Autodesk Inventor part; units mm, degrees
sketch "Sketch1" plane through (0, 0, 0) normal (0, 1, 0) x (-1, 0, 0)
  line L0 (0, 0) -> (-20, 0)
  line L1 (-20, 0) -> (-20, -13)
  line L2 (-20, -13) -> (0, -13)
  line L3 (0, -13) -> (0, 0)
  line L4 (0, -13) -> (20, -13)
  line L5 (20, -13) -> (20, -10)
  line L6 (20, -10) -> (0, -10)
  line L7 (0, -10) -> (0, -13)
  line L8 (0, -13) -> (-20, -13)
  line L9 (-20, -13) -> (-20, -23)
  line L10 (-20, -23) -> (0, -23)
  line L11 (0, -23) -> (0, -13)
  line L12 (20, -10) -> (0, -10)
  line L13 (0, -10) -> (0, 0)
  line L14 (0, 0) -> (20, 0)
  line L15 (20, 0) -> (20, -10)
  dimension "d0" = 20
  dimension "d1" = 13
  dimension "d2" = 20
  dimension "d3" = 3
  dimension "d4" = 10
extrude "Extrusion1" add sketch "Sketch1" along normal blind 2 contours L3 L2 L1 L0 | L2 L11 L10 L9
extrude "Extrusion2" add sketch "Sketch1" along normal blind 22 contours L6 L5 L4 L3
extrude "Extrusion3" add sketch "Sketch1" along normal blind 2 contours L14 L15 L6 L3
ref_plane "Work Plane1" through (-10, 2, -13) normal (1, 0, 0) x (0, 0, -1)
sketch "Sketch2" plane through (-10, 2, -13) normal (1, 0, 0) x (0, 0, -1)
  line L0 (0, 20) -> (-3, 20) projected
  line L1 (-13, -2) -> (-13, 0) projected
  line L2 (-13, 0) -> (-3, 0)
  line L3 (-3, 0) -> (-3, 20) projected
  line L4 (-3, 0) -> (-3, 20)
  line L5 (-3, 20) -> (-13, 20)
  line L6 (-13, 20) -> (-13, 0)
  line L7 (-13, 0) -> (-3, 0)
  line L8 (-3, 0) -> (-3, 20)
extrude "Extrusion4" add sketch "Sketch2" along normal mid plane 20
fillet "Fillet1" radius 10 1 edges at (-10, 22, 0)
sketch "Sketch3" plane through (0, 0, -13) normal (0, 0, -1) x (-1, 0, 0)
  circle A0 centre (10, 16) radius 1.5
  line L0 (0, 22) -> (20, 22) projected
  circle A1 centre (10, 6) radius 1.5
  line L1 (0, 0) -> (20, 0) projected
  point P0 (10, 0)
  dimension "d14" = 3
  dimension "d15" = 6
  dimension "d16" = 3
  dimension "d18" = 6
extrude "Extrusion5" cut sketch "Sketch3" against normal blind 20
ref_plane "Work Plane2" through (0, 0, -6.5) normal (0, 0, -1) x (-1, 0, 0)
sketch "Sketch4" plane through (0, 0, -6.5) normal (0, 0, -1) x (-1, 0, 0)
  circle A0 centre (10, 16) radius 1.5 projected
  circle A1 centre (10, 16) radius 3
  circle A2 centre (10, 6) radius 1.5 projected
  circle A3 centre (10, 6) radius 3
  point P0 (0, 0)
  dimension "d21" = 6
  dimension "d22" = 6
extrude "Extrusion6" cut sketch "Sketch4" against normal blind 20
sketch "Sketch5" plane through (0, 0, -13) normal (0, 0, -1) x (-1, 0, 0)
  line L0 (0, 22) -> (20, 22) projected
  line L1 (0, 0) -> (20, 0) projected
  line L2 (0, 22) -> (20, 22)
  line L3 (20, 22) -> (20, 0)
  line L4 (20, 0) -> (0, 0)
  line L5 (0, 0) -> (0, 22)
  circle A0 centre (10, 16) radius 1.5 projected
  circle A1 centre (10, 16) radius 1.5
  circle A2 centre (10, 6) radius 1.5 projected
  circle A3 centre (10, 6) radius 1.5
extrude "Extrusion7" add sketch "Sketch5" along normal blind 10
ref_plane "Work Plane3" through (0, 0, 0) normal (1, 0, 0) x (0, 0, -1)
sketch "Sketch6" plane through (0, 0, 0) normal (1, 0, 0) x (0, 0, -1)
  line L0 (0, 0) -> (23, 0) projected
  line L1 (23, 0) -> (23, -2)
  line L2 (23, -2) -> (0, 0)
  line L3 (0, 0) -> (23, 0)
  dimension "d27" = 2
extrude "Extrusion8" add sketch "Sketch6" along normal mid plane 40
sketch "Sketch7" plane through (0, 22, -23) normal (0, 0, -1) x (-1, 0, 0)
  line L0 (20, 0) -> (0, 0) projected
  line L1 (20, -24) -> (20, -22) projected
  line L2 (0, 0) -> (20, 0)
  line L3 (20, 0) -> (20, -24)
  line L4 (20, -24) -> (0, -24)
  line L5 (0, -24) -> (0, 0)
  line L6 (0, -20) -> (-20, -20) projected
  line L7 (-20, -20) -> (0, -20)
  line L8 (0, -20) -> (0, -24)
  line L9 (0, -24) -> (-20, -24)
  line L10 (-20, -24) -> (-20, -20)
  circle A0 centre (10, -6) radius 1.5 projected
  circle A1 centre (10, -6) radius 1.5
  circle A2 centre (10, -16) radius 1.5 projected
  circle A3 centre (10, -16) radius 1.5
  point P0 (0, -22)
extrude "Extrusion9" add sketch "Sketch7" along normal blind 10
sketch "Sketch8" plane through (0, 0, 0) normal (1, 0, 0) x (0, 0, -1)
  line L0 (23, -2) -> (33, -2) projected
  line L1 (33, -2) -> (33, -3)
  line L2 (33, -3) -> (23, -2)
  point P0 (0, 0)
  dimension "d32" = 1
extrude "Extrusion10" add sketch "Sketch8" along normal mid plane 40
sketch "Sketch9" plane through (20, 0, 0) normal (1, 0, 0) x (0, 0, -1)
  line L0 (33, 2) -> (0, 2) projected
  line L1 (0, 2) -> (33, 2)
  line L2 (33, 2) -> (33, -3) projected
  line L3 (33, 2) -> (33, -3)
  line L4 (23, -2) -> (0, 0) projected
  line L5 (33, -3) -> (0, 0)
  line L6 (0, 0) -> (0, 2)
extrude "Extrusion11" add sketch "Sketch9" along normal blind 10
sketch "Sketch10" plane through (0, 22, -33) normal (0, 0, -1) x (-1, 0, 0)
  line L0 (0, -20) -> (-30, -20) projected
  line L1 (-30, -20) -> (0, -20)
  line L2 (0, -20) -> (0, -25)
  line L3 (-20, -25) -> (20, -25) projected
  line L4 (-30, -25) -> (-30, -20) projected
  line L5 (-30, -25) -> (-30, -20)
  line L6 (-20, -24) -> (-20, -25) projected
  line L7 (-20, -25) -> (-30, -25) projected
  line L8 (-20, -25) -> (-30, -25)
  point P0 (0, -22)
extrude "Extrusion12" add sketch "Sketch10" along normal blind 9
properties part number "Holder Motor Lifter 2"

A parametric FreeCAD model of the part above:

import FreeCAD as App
import Part
import Sketcher
from FreeCAD import Vector
Q = App.Units.Quantity


def edges_at(feature, points):
    """Names of the edges that pass closest to the given points."""
    edges = feature.Shape.Edges
    near = lambda p: min(range(len(edges)), key=lambda i: edges[i].distToShape(Part.Vertex(*p))[0])
    return sorted({f"Edge{near(p) + 1}" for p in points})

doc = App.newDocument("Part")
body = doc.addObject("PartDesign::Body", "Body")

sketch1 = doc.addObject("Sketcher::SketchObject", "Sketch")
body.addObject(sketch1)
sketch1.AttachmentSupport = (doc.XZ_Plane, [""])
sketch1.MapMode = "FlatFace"
sketch1.addGeometry(Part.LineSegment(Vector(0, 0, 0), Vector(20, 0, 0)), False)
sketch1.addGeometry(Part.LineSegment(Vector(20, 0, 0), Vector(20, -23, 0)), False)
sketch1.addGeometry(Part.LineSegment(Vector(20, -23, 0), Vector(0, -23, 0)), False)
sketch1.addGeometry(Part.LineSegment(Vector(0, -23, 0), Vector(0, 0, 0)), False)
sketch1.addConstraint(Sketcher.Constraint("Coincident", 0, 2, 1, 1))
sketch1.addConstraint(Sketcher.Constraint("Coincident", 1, 2, 2, 1))
sketch1.addConstraint(Sketcher.Constraint("Coincident", 2, 2, 3, 1))
sketch1.addConstraint(Sketcher.Constraint("Coincident", 3, 2, 0, 1))
sketch1.addConstraint(Sketcher.Constraint("Horizontal", 0))
sketch1.addConstraint(Sketcher.Constraint("Vertical", 1))
sketch1.addConstraint(Sketcher.Constraint("Horizontal", 2))
sketch1.addConstraint(Sketcher.Constraint("Vertical", 3))
sketch1.addConstraint(Sketcher.Constraint("Coincident", 3, 2, -1, 1))
sketch1.addConstraint(Sketcher.Constraint("DistanceX", 0, 1, 0, 2, Q("20 mm")))
sketch1.addConstraint(Sketcher.Constraint("DistanceY", 1, 2, 1, 1, Q("23 mm")))
pad1 = doc.addObject("PartDesign::Pad", "Pad")
body.addObject(pad1)
pad1.Profile = sketch1
pad1.Length = 2
pad1.Reversed = True

sketch2 = doc.addObject("Sketcher::SketchObject", "Sketch001")
body.addObject(sketch2)
sketch2.AttachmentSupport = (doc.XZ_Plane, [""])
sketch2.MapMode = "FlatFace"
sketch2.addGeometry(Part.LineSegment(Vector(-20, -10, 0), Vector(0, -10, 0)), False)
sketch2.addGeometry(Part.LineSegment(Vector(0, -10, 0), Vector(0, -13, 0)), False)
sketch2.addGeometry(Part.LineSegment(Vector(0, -13, 0), Vector(-20, -13, 0)), False)
sketch2.addGeometry(Part.LineSegment(Vector(-20, -13, 0), Vector(-20, -10, 0)), False)
sketch2.addConstraint(Sketcher.Constraint("Coincident", 0, 2, 1, 1))
sketch2.addConstraint(Sketcher.Constraint("Coincident", 1, 2, 2, 1))
sketch2.addConstraint(Sketcher.Constraint("Coincident", 2, 2, 3, 1))
sketch2.addConstraint(Sketcher.Constraint("Coincident", 3, 2, 0, 1))
sketch2.addConstraint(Sketcher.Constraint("Horizontal", 0))
sketch2.addConstraint(Sketcher.Constraint("Vertical", 1))
sketch2.addConstraint(Sketcher.Constraint("Horizontal", 2))
sketch2.addConstraint(Sketcher.Constraint("Vertical", 3))
sketch2.addConstraint(Sketcher.Constraint("PointOnObject", 0, 2, -2))
sketch2.addConstraint(Sketcher.Constraint("DistanceX", 0, 1, 0, 2, Q("20 mm")))
sketch2.addConstraint(Sketcher.Constraint("DistanceY", 1, 2, 1, 1, Q("3 mm")))
sketch2.addConstraint(Sketcher.Constraint("DistanceY", 0, 2, -1, 1, Q("10 mm")))
pad2 = doc.addObject("PartDesign::Pad", "Pad001")
body.addObject(pad2)
pad2.Profile = sketch2
pad2.Length = 22
pad2.Reversed = True

sketch3 = doc.addObject("Sketcher::SketchObject", "Sketch002")
body.addObject(sketch3)
sketch3.AttachmentSupport = (doc.XZ_Plane, [""])
sketch3.MapMode = "FlatFace"
sketch3.addGeometry(Part.LineSegment(Vector(-20, 0, 0), Vector(0, 0, 0)), False)
sketch3.addGeometry(Part.LineSegment(Vector(0, 0, 0), Vector(0, -10, 0)), False)
sketch3.addGeometry(Part.LineSegment(Vector(0, -10, 0), Vector(-20, -10, 0)), False)
sketch3.addGeometry(Part.LineSegment(Vector(-20, -10, 0), Vector(-20, 0, 0)), False)
sketch3.addConstraint(Sketcher.Constraint("Coincident", 0, 2, 1, 1))
sketch3.addConstraint(Sketcher.Constraint("Coincident", 1, 2, 2, 1))
sketch3.addConstraint(Sketcher.Constraint("Coincident", 2, 2, 3, 1))
sketch3.addConstraint(Sketcher.Constraint("Coincident", 3, 2, 0, 1))
sketch3.addConstraint(Sketcher.Constraint("Horizontal", 0))
sketch3.addConstraint(Sketcher.Constraint("Vertical", 1))
sketch3.addConstraint(Sketcher.Constraint("Horizontal", 2))
sketch3.addConstraint(Sketcher.Constraint("Vertical", 3))
sketch3.addConstraint(Sketcher.Constraint("Coincident", 0, 2, -1, 1))
sketch3.addConstraint(Sketcher.Constraint("DistanceX", 0, 1, 0, 2, Q("20 mm")))
sketch3.addConstraint(Sketcher.Constraint("DistanceY", 1, 2, 1, 1, Q("10 mm")))
pad3 = doc.addObject("PartDesign::Pad", "Pad002")
body.addObject(pad3)
pad3.Profile = sketch3
pad3.Length = 2
pad3.Reversed = True

sketch4 = doc.addObject("Sketcher::SketchObject", "Sketch003")
body.addObject(sketch4)
sketch4.AttachmentSupport = (doc.YZ_Plane, [""])
sketch4.MapMode = "FlatFace"
sketch4.AttachmentOffset = App.Placement(Vector(0, 0, -10), App.Rotation())
sketch4.addGeometry(Part.LineSegment(Vector(22, 0, 0), Vector(2, 0, 0)), False)
sketch4.addGeometry(Part.LineSegment(Vector(2, 0, 0), Vector(2, -10, 0)), False)
sketch4.addGeometry(Part.LineSegment(Vector(2, -10, 0), Vector(22, -10, 0)), False)
sketch4.addGeometry(Part.LineSegment(Vector(22, -10, 0), Vector(22, 0, 0)), False)
sketch4.addConstraint(Sketcher.Constraint("Coincident", 0, 2, 1, 1))
sketch4.addConstraint(Sketcher.Constraint("Coincident", 1, 2, 2, 1))
sketch4.addConstraint(Sketcher.Constraint("Coincident", 2, 2, 3, 1))
sketch4.addConstraint(Sketcher.Constraint("Coincident", 3, 2, 0, 1))
sketch4.addConstraint(Sketcher.Constraint("Horizontal", 0))
sketch4.addConstraint(Sketcher.Constraint("Vertical", 1))
sketch4.addConstraint(Sketcher.Constraint("Horizontal", 2))
sketch4.addConstraint(Sketcher.Constraint("Vertical", 3))
sketch4.addConstraint(Sketcher.Constraint("PointOnObject", 0, 2, -1))
sketch4.addConstraint(Sketcher.Constraint("DistanceX", 0, 2, 0, 1, Q("20 mm")))
sketch4.addConstraint(Sketcher.Constraint("DistanceY", 1, 2, 1, 1, Q("10 mm")))
sketch4.addConstraint(Sketcher.Constraint("DistanceX", -1, 1, 0, 2, Q("2 mm")))
pad4 = doc.addObject("PartDesign::Pad", "Pad003")
body.addObject(pad4)
pad4.Profile = sketch4
pad4.Length = 20
pad4.Midplane = True
doc.recompute()

fillet = doc.addObject("PartDesign::Fillet", "Fillet")
body.addObject(fillet)
fillet.Base = (pad4, edges_at(pad4, [(-10, 22, 0)]))
fillet.Radius = 10

sketch5 = doc.addObject("Sketcher::SketchObject", "Sketch004")
body.addObject(sketch5)
sketch5.AttachmentSupport = (doc.XY_Plane, [""])
sketch5.MapMode = "FlatFace"
sketch5.AttachmentOffset = App.Placement(Vector(0, 0, -13), App.Rotation())
sketch5.addGeometry(Part.Circle(Vector(-10, 16, 0), Vector(0, 0, 1), 1.5), False)
sketch5.addGeometry(Part.Circle(Vector(-10, 6, 0), Vector(0, 0, 1), 1.5), False)
sketch5.addConstraint(Sketcher.Constraint("Equal", 0, 1))
sketch5.addConstraint(Sketcher.Constraint("Vertical", 0, 3, 1, 3))
sketch5.addConstraint(Sketcher.Constraint("Diameter", 0, Q("3 mm")))
sketch5.addConstraint(Sketcher.Constraint("DistanceY", -1, 1, 1, 3, Q("6 mm")))
sketch5.addConstraint(Sketcher.Constraint("DistanceX", 0, 3, -1, 1, Q("10 mm")))
sketch5.addConstraint(Sketcher.Constraint("DistanceY", -1, 1, 0, 3, Q("16 mm")))
pocket1 = doc.addObject("PartDesign::Pocket", "Pocket")
body.addObject(pocket1)
pocket1.Profile = sketch5
pocket1.Length = 20
pocket1.Reversed = True

sketch6 = doc.addObject("Sketcher::SketchObject", "Sketch005")
body.addObject(sketch6)
sketch6.AttachmentSupport = (doc.XY_Plane, [""])
sketch6.MapMode = "FlatFace"
sketch6.AttachmentOffset = App.Placement(Vector(0, 0, -6.5), App.Rotation())
sketch6.addGeometry(Part.Circle(Vector(-10, 16, 0), Vector(0, 0, 1), 3), False)
sketch6.addGeometry(Part.Circle(Vector(-10, 16, 0), Vector(0, 0, 1), 1.5), False)
sketch6.addGeometry(Part.Circle(Vector(-10, 6, 0), Vector(0, 0, 1), 3), False)
sketch6.addGeometry(Part.Circle(Vector(-10, 6, 0), Vector(0, 0, 1), 1.5), False)
sketch6.addConstraint(Sketcher.Constraint("Coincident", 1, 3, 0, 3))
sketch6.addConstraint(Sketcher.Constraint("Coincident", 3, 3, 2, 3))
sketch6.addConstraint(Sketcher.Constraint("Equal", 0, 2))
sketch6.addConstraint(Sketcher.Constraint("Equal", 1, 3))
sketch6.addConstraint(Sketcher.Constraint("Vertical", 1, 3, 2, 3))
sketch6.addConstraint(Sketcher.Constraint("Diameter", 0, Q("6 mm")))
sketch6.addConstraint(Sketcher.Constraint("Diameter", 1, Q("3 mm")))
sketch6.addConstraint(Sketcher.Constraint("DistanceY", -1, 1, 2, 3, Q("6 mm")))
sketch6.addConstraint(Sketcher.Constraint("DistanceX", 0, 3, -1, 1, Q("10 mm")))
sketch6.addConstraint(Sketcher.Constraint("DistanceY", -1, 1, 0, 3, Q("16 mm")))
pocket2 = doc.addObject("PartDesign::Pocket", "Pocket001")
body.addObject(pocket2)
pocket2.Profile = sketch6
pocket2.Length = 20
pocket2.Reversed = True

sketch7 = doc.addObject("Sketcher::SketchObject", "Sketch006")
body.addObject(sketch7)
sketch7.AttachmentSupport = (doc.XY_Plane, [""])
sketch7.MapMode = "FlatFace"
sketch7.AttachmentOffset = App.Placement(Vector(0, 0, -13), App.Rotation())
sketch7.addGeometry(Part.LineSegment(Vector(-20, 22, 0), Vector(0, 22, 0)), False)
sketch7.addGeometry(Part.LineSegment(Vector(0, 22, 0), Vector(0, 0, 0)), False)
sketch7.addGeometry(Part.LineSegment(Vector(0, 0, 0), Vector(-20, 0, 0)), False)
sketch7.addGeometry(Part.LineSegment(Vector(-20, 0, 0), Vector(-20, 22, 0)), False)
sketch7.addGeometry(Part.Circle(Vector(-10, 6, 0), Vector(0, 0, 1), 1.5), False)
sketch7.addGeometry(Part.Circle(Vector(-10, 16, 0), Vector(0, 0, 1), 1.5), False)
sketch7.addConstraint(Sketcher.Constraint("Coincident", 0, 2, 1, 1))
sketch7.addConstraint(Sketcher.Constraint("Coincident", 1, 2, 2, 1))
sketch7.addConstraint(Sketcher.Constraint("Coincident", 2, 2, 3, 1))
sketch7.addConstraint(Sketcher.Constraint("Coincident", 3, 2, 0, 1))
sketch7.addConstraint(Sketcher.Constraint("Horizontal", 0))
sketch7.addConstraint(Sketcher.Constraint("Vertical", 1))
sketch7.addConstraint(Sketcher.Constraint("Horizontal", 2))
sketch7.addConstraint(Sketcher.Constraint("Vertical", 3))
sketch7.addConstraint(Sketcher.Constraint("Coincident", 1, 2, -1, 1))
sketch7.addConstraint(Sketcher.Constraint("Equal", 4, 5))
sketch7.addConstraint(Sketcher.Constraint("Vertical", 4, 3, 5, 3))
sketch7.addConstraint(Sketcher.Constraint("Diameter", 4, Q("3 mm")))
sketch7.addConstraint(Sketcher.Constraint("DistanceX", 0, 1, 0, 2, Q("20 mm")))
sketch7.addConstraint(Sketcher.Constraint("DistanceY", 1, 2, 1, 1, Q("22 mm")))
sketch7.addConstraint(Sketcher.Constraint("DistanceX", 4, 3, -1, 1, Q("10 mm")))
sketch7.addConstraint(Sketcher.Constraint("DistanceY", -1, 1, 4, 3, Q("6 mm")))
sketch7.addConstraint(Sketcher.Constraint("DistanceY", -1, 1, 5, 3, Q("16 mm")))
pad5 = doc.addObject("PartDesign::Pad", "Pad004")
body.addObject(pad5)
pad5.Profile = sketch7
pad5.Length = 10
pad5.Reversed = True

sketch8 = doc.addObject("Sketcher::SketchObject", "Sketch007")
body.addObject(sketch8)
sketch8.AttachmentSupport = (doc.YZ_Plane, [""])
sketch8.MapMode = "FlatFace"
sketch8.addGeometry(Part.LineSegment(Vector(0, -23, 0), Vector(0, 0, 0)), False)
sketch8.addGeometry(Part.LineSegment(Vector(0, 0, 0), Vector(-2, -23, 0)), False)
sketch8.addGeometry(Part.LineSegment(Vector(-2, -23, 0), Vector(0, -23, 0)), False)
sketch8.addConstraint(Sketcher.Constraint("Coincident", 0, 2, 1, 1))
sketch8.addConstraint(Sketcher.Constraint("Coincident", 1, 2, 2, 1))
sketch8.addConstraint(Sketcher.Constraint("Coincident", 2, 2, 0, 1))
sketch8.addConstraint(Sketcher.Constraint("Vertical", 0))
sketch8.addConstraint(Sketcher.Constraint("Horizontal", 2))
sketch8.addConstraint(Sketcher.Constraint("Coincident", 0, 2, -1, 1))
sketch8.addConstraint(Sketcher.Constraint("DistanceX", 2, 1, 2, 2, Q("2 mm")))
sketch8.addConstraint(Sketcher.Constraint("DistanceY", 0, 1, 0, 2, Q("23 mm")))
pad6 = doc.addObject("PartDesign::Pad", "Pad005")
body.addObject(pad6)
pad6.Profile = sketch8
pad6.Length = 40
pad6.Midplane = True

sketch9 = doc.addObject("Sketcher::SketchObject", "Sketch008")
body.addObject(sketch9)
sketch9.AttachmentSupport = (doc.XY_Plane, [""])
sketch9.MapMode = "FlatFace"
sketch9.AttachmentOffset = App.Placement(Vector(0, 0, -23), App.Rotation())
sketch9.addGeometry(Part.LineSegment(Vector(-20, 22, 0), Vector(0, 22, 0)), False)
sketch9.addGeometry(Part.LineSegment(Vector(0, 22, 0), Vector(0, 2, 0)), False)
sketch9.addGeometry(Part.LineSegment(Vector(0, 2, 0), Vector(20, 2, 0)), False)
sketch9.addGeometry(Part.LineSegment(Vector(20, 2, 0), Vector(20, -2, 0)), False)
sketch9.addGeometry(Part.LineSegment(Vector(20, -2, 0), Vector(-20, -2, 0)), False)
sketch9.addGeometry(Part.LineSegment(Vector(-20, -2, 0), Vector(-20, 22, 0)), False)
sketch9.addGeometry(Part.Circle(Vector(-10, 6, 0), Vector(0, 0, 1), 1.5), False)
sketch9.addGeometry(Part.Circle(Vector(-10, 16, 0), Vector(0, 0, 1), 1.5), False)
sketch9.addConstraint(Sketcher.Constraint("Coincident", 0, 2, 1, 1))
sketch9.addConstraint(Sketcher.Constraint("Coincident", 1, 2, 2, 1))
sketch9.addConstraint(Sketcher.Constraint("Coincident", 2, 2, 3, 1))
sketch9.addConstraint(Sketcher.Constraint("Coincident", 3, 2, 4, 1))
sketch9.addConstraint(Sketcher.Constraint("Coincident", 4, 2, 5, 1))
sketch9.addConstraint(Sketcher.Constraint("Coincident", 5, 2, 0, 1))
sketch9.addConstraint(Sketcher.Constraint("Horizontal", 0))
sketch9.addConstraint(Sketcher.Constraint("Vertical", 1))
sketch9.addConstraint(Sketcher.Constraint("Horizontal", 2))
sketch9.addConstraint(Sketcher.Constraint("Vertical", 3))
sketch9.addConstraint(Sketcher.Constraint("Horizontal", 4))
sketch9.addConstraint(Sketcher.Constraint("Vertical", 5))
sketch9.addConstraint(Sketcher.Constraint("Equal", 6, 7))
sketch9.addConstraint(Sketcher.Constraint("Symmetric", 2, 2, 4, 2, -1, 1))
sketch9.addConstraint(Sketcher.Constraint("PointOnObject", 0, 2, -2))
sketch9.addConstraint(Sketcher.Constraint("Vertical", 6, 3, 7, 3))
sketch9.addConstraint(Sketcher.Constraint("Equal", 2, 1))
sketch9.addConstraint(Sketcher.Constraint("Diameter", 6, Q("3 mm")))
sketch9.addConstraint(Sketcher.Constraint("DistanceX", 0, 1, 0, 2, Q("20 mm")))
sketch9.addConstraint(Sketcher.Constraint("DistanceY", 3, 2, 3, 1, Q("4 mm")))
sketch9.addConstraint(Sketcher.Constraint("DistanceX", 6, 3, -1, 1, Q("10 mm")))
sketch9.addConstraint(Sketcher.Constraint("DistanceY", -1, 1, 6, 3, Q("6 mm")))
sketch9.addConstraint(Sketcher.Constraint("DistanceY", -1, 1, 7, 3, Q("16 mm")))
pad7 = doc.addObject("PartDesign::Pad", "Pad006")
body.addObject(pad7)
pad7.Profile = sketch9
pad7.Length = 10
pad7.Reversed = True

sketch10 = doc.addObject("Sketcher::SketchObject", "Sketch009")
body.addObject(sketch10)
sketch10.AttachmentSupport = (doc.YZ_Plane, [""])
sketch10.MapMode = "FlatFace"
sketch10.addGeometry(Part.LineSegment(Vector(-2, -33, 0), Vector(-2, -23, 0)), False)
sketch10.addGeometry(Part.LineSegment(Vector(-2, -23, 0), Vector(-3, -33, 0)), False)
sketch10.addGeometry(Part.LineSegment(Vector(-3, -33, 0), Vector(-2, -33, 0)), False)
sketch10.addConstraint(Sketcher.Constraint("Coincident", 0, 2, 1, 1))
sketch10.addConstraint(Sketcher.Constraint("Coincident", 1, 2, 2, 1))
sketch10.addConstraint(Sketcher.Constraint("Coincident", 2, 2, 0, 1))
sketch10.addConstraint(Sketcher.Constraint("Vertical", 0))
sketch10.addConstraint(Sketcher.Constraint("Horizontal", 2))
sketch10.addConstraint(Sketcher.Constraint("DistanceX", 2, 1, 2, 2, Q("1 mm")))
sketch10.addConstraint(Sketcher.Constraint("DistanceY", 0, 1, 0, 2, Q("10 mm")))
sketch10.addConstraint(Sketcher.Constraint("DistanceX", 0, 2, -1, 1, Q("2 mm")))
sketch10.addConstraint(Sketcher.Constraint("DistanceY", 0, 2, -1, 1, Q("23 mm")))
pad8 = doc.addObject("PartDesign::Pad", "Pad007")
body.addObject(pad8)
pad8.Profile = sketch10
pad8.Length = 40
pad8.Midplane = True

sketch11 = doc.addObject("Sketcher::SketchObject", "Sketch010")
body.addObject(sketch11)
sketch11.AttachmentSupport = (doc.YZ_Plane, [""])
sketch11.MapMode = "FlatFace"
sketch11.AttachmentOffset = App.Placement(Vector(0, 0, 20), App.Rotation())
sketch11.addGeometry(Part.LineSegment(Vector(-3, -33, 0), Vector(2, -33, 0)), False)
sketch11.addGeometry(Part.LineSegment(Vector(2, -33, 0), Vector(2, 0, 0)), False)
sketch11.addGeometry(Part.LineSegment(Vector(2, 0, 0), Vector(0, 0, 0)), False)
sketch11.addGeometry(Part.LineSegment(Vector(0, 0, 0), Vector(-3, -33, 0)), False)
sketch11.addConstraint(Sketcher.Constraint("Coincident", 0, 2, 1, 1))
sketch11.addConstraint(Sketcher.Constraint("Coincident", 1, 2, 2, 1))
sketch11.addConstraint(Sketcher.Constraint("Coincident", 2, 2, 3, 1))
sketch11.addConstraint(Sketcher.Constraint("Coincident", 3, 2, 0, 1))
sketch11.addConstraint(Sketcher.Constraint("Horizontal", 0))
sketch11.addConstraint(Sketcher.Constraint("Vertical", 1))
sketch11.addConstraint(Sketcher.Constraint("Horizontal", 2))
sketch11.addConstraint(Sketcher.Constraint("Coincident", 2, 2, -1, 1))
sketch11.addConstraint(Sketcher.Constraint("DistanceX", 0, 1, 0, 2, Q("5 mm")))
sketch11.addConstraint(Sketcher.Constraint("DistanceX", 2, 2, 2, 1, Q("2 mm")))
sketch11.addConstraint(Sketcher.Constraint("DistanceY", 1, 1, 1, 2, Q("33 mm")))
pad9 = doc.addObject("PartDesign::Pad", "Pad008")
body.addObject(pad9)
pad9.Profile = sketch11
pad9.Length = 10

sketch12 = doc.addObject("Sketcher::SketchObject", "Sketch011")
body.addObject(sketch12)
sketch12.AttachmentSupport = (doc.XY_Plane, [""])
sketch12.MapMode = "FlatFace"
sketch12.AttachmentOffset = App.Placement(Vector(0, 0, -33), App.Rotation())
sketch12.addGeometry(Part.LineSegment(Vector(0, -3, 0), Vector(0, 2, 0)), False)
sketch12.addGeometry(Part.LineSegment(Vector(0, 2, 0), Vector(30, 2, 0)), False)
sketch12.addGeometry(Part.LineSegment(Vector(30, 2, 0), Vector(30, -3, 0)), False)
sketch12.addGeometry(Part.LineSegment(Vector(30, -3, 0), Vector(0, -3, 0)), False)
sketch12.addConstraint(Sketcher.Constraint("Coincident", 0, 2, 1, 1))
sketch12.addConstraint(Sketcher.Constraint("Coincident", 1, 2, 2, 1))
sketch12.addConstraint(Sketcher.Constraint("Coincident", 2, 2, 3, 1))
sketch12.addConstraint(Sketcher.Constraint("Coincident", 3, 2, 0, 1))
sketch12.addConstraint(Sketcher.Constraint("Vertical", 0))
sketch12.addConstraint(Sketcher.Constraint("Horizontal", 1))
sketch12.addConstraint(Sketcher.Constraint("Vertical", 2))
sketch12.addConstraint(Sketcher.Constraint("Horizontal", 3))
sketch12.addConstraint(Sketcher.Constraint("PointOnObject", 0, 2, -2))
sketch12.addConstraint(Sketcher.Constraint("DistanceX", 1, 1, 1, 2, Q("30 mm")))
sketch12.addConstraint(Sketcher.Constraint("DistanceY", 0, 1, 0, 2, Q("5 mm")))
sketch12.addConstraint(Sketcher.Constraint("DistanceY", -1, 1, 0, 2, Q("2 mm")))
pad10 = doc.addObject("PartDesign::Pad", "Pad009")
body.addObject(pad10)
pad10.Profile = sketch12
pad10.Length = 9
pad10.Reversed = True

doc.recompute()
